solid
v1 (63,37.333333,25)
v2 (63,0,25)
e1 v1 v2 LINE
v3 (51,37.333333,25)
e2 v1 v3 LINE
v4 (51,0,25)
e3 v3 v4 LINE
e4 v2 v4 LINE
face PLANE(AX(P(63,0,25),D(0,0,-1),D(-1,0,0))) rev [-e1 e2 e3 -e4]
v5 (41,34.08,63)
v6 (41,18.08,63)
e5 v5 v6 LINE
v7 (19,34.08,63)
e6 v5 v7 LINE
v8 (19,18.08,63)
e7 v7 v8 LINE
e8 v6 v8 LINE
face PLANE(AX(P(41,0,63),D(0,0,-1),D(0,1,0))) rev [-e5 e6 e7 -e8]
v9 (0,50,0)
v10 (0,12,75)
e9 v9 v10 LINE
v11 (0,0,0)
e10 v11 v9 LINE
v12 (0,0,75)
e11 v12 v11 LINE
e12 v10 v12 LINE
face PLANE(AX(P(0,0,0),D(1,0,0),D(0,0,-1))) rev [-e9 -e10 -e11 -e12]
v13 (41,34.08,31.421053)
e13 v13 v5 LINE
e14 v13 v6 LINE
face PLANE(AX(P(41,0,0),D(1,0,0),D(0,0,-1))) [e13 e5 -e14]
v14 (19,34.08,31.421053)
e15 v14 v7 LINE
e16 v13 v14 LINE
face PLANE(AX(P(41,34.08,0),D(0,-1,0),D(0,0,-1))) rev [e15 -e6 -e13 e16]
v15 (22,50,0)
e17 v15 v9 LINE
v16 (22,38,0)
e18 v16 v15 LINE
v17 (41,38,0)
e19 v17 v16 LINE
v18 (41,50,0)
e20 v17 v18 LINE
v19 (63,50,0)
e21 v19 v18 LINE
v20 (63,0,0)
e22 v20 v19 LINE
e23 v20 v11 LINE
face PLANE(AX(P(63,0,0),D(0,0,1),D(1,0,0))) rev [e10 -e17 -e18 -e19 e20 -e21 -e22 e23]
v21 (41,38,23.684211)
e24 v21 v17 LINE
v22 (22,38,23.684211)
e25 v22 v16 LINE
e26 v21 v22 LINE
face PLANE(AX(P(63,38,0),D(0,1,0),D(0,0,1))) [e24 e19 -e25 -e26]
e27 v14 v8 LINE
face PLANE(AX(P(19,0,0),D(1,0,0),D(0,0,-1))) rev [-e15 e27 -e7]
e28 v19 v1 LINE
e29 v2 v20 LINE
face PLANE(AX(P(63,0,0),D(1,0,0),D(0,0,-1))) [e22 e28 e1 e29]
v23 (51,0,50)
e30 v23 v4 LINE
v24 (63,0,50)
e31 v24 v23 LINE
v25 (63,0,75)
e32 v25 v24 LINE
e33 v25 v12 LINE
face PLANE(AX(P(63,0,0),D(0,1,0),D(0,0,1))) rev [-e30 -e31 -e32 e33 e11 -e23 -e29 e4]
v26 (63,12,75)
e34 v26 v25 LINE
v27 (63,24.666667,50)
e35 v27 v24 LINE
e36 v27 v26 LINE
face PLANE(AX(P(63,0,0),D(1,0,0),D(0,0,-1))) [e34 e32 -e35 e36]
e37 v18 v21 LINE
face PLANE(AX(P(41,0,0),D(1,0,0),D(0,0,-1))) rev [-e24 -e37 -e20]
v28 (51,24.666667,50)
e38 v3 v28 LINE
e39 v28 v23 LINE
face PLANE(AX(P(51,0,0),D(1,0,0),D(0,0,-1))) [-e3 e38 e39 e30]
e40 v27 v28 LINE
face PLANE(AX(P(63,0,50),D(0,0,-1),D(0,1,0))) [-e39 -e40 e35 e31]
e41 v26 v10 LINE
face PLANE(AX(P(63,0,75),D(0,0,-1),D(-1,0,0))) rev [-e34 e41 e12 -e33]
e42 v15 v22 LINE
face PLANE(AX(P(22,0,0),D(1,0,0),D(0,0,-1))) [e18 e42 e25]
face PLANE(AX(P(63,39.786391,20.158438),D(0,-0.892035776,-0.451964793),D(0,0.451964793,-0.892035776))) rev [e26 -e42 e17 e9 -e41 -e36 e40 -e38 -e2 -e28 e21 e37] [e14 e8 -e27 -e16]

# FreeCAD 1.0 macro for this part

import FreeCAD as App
import Part
import Sketcher

V = App.Vector
Q = App.Units.Quantity


def add_polygon(sketch, points):
    """Adds a closed chain of lines whose ends are joined by coincident constraints."""
    first, n = sketch.GeometryCount, len(points)
    for a, b in zip(points, points[1:] + points[:1]):
        sketch.addGeometry(Part.LineSegment(App.Vector(*a, 0), App.Vector(*b, 0)), False)
    for i in range(n):
        sketch.addConstraint(Sketcher.Constraint("Coincident", first + i, 2, first + (i + 1) % n, 1))

doc = App.newDocument("Part")
body = doc.addObject("PartDesign::Body", "Body")

sketch1 = body.newObject("Sketcher::SketchObject", "Sketch")
sketch1.AttachmentSupport = (doc.getObject("YZ_Plane"), [""])
sketch1.MapMode = "FlatFace"
add_polygon(sketch1, [(0, 75), (0, 50), (24.666667, 50), (18.08, 63), (12, 75)])
sketch1.addConstraint([
    Sketcher.Constraint("Vertical", 0),
    Sketcher.Constraint("Horizontal", 1),
    Sketcher.Constraint("Horizontal", 4),
    Sketcher.Constraint("PointOnObject", 0, 2, -2),
    Sketcher.Constraint("Parallel", 2, 3),
    Sketcher.Constraint("DistanceX", 4, 2, 4, 1, Q("12 mm")),
    Sketcher.Constraint("DistanceY", 0, 2, 0, 1, Q("25 mm")),
    Sketcher.Constraint("DistanceY", -1, 1, 0, 2, Q("50 mm")),
    Sketcher.Constraint("DistanceY", -1, 1, 2, 2, Q("63 mm")),
    Sketcher.Constraint("DistanceX", -1, 1, 2, 2, Q("18.08 mm")),
])
pad1 = body.newObject("PartDesign::Pad", "Pad")
pad1.Profile = sketch1
pad1.Length = 63
body2 = doc.addObject("PartDesign::Body", "Body001")

sketch2 = body2.newObject("Sketcher::SketchObject", "Sketch001")
sketch2.AttachmentSupport = (doc.getObject("YZ_Plane001"), [""])
sketch2.MapMode = "FlatFace"
add_polygon(sketch2, [(0, 25), (0, 0), (38, 0), (38, 23.684211), (37.333333, 25)])
sketch2.addConstraint([
    Sketcher.Constraint("Vertical", 0),
    Sketcher.Constraint("Horizontal", 1),
    Sketcher.Constraint("Vertical", 2),
    Sketcher.Constraint("Horizontal", 4),
    Sketcher.Constraint("Coincident", 0, 2, -1, 1),
    Sketcher.Constraint("DistanceX", 1, 1, 1, 2, Q("38 mm")),
    Sketcher.Constraint("DistanceY", 0, 2, 0, 1, Q("25 mm")),
    Sketcher.Constraint("DistanceY", 2, 1, 2, 2, Q("23.684211 mm")),
    Sketcher.Constraint("Distance", 3, Q("1.475041 mm")),
])
pad2 = body2.newObject("PartDesign::Pad", "Pad001")
pad2.Profile = sketch2
pad2.Length = 63
body.AllowCompound = True
doc.recompute()

boolean = body.newObject("PartDesign::Boolean", "Boolean")
boolean.Type = "Fuse"
boolean.addObjects([body2])

sketch3 = body.newObject("Sketcher::SketchObject", "Sketch002")
sketch3.AttachmentSupport = (doc.getObject("YZ_Plane"), [""])
sketch3.MapMode = "FlatFace"
add_polygon(sketch3, [(0, 50), (0, 25), (37.333333, 25), (34.08, 31.421053), (24.666667, 50)])
sketch3.addConstraint([
    Sketcher.Constraint("Vertical", 0),
    Sketcher.Constraint("Horizontal", 1),
    Sketcher.Constraint("Horizontal", 4),
    Sketcher.Constraint("PointOnObject", 0, 2, -2),
    Sketcher.Constraint("Parallel", 2, 3),
    Sketcher.Constraint("DistanceY", 0, 2, 0, 1, Q("25 mm")),
    Sketcher.Constraint("DistanceY", -1, 1, 0, 2, Q("25 mm")),
    Sketcher.Constraint("DistanceX", -1, 1, 2, 2, Q("34.08 mm")),
    Sketcher.Constraint("Distance", 2, Q("7.198201 mm")),
    Sketcher.Constraint("Distance", 3, Q("20.827581 mm")),
])
pad3 = body.newObject("PartDesign::Pad", "Pad002")
pad3.Profile = sketch3
pad3.Length = 51

sketch4 = body.newObject("Sketcher::SketchObject", "Sketch003")
sketch4.AttachmentSupport = (doc.getObject("YZ_Plane"), [""])
sketch4.MapMode = "FlatFace"
add_polygon(sketch4, [(38, 23.684211), (38, 0), (50, 0)])
sketch4.addConstraint([
    Sketcher.Constraint("Vertical", 0),
    Sketcher.Constraint("Horizontal", 1),
    Sketcher.Constraint("PointOnObject", 0, 2, -1),
    Sketcher.Constraint("DistanceX", 1, 1, 1, 2, Q("12 mm")),
    Sketcher.Constraint("DistanceX", -1, 1, 0, 2, Q("38 mm")),
    Sketcher.Constraint("DistanceY", 0, 2, 0, 1, Q("23.684211 mm")),
])
pad4 = body.newObject("PartDesign::Pad", "Pad003")
pad4.Profile = sketch4
pad4.Length = 22

sketch5 = body.newObject("Sketcher::SketchObject", "Sketch004")
sketch5.AttachmentSupport = (doc.getObject("YZ_Plane"), [""])
sketch5.MapMode = "FlatFace"
sketch5.AttachmentOffset = App.Placement(V(0, 0, 41), App.Rotation())
add_polygon(sketch5, [(38, 23.684211), (38, 0), (50, 0)])
sketch5.addConstraint([
    Sketcher.Constraint("Vertical", 0),
    Sketcher.Constraint("Horizontal", 1),
    Sketcher.Constraint("PointOnObject", 0, 2, -1),
    Sketcher.Constraint("DistanceX", 1, 1, 1, 2, Q("12 mm")),
    Sketcher.Constraint("DistanceX", -1, 1, 0, 2, Q("38 mm")),
    Sketcher.Constraint("DistanceY", 0, 2, 0, 1, Q("23.684211 mm")),
])
pad5 = body.newObject("PartDesign::Pad", "Pad004")
pad5.Profile = sketch5
pad5.Length = 22

sketch6 = body.newObject("Sketcher::SketchObject", "Sketch005")
sketch6.AttachmentSupport = (doc.getObject("YZ_Plane"), [""])
sketch6.MapMode = "FlatFace"
sketch6.AttachmentOffset = App.Placement(V(0, 0, 19), App.Rotation())
add_polygon(sketch6, [(18.08, 63), (24.666667, 50), (34.08, 31.421053), (34.08, 63)])
sketch6.addConstraint([
    Sketcher.Constraint("Vertical", 2),
    Sketcher.Constraint("Horizontal", 3),
    Sketcher.Constraint("Parallel", 0, 1),
    Sketcher.Constraint("DistanceX", 3, 2, 3, 1, Q("16 mm")),
    Sketcher.Constraint("DistanceY", -1, 1, 0, 2, Q("50 mm")),
    Sketcher.Constraint("DistanceY", -1, 1, 2, 2, Q("63 mm")),
    Sketcher.Constraint("DistanceX", -1, 1, 1, 2, Q("34.08 mm")),
    Sketcher.Constraint("Distance", 1, Q("20.827581 mm")),
])
pad6 = body.newObject("PartDesign::Pad", "Pad005")
pad6.Profile = sketch6
pad6.Length = 22

doc.recompute()
